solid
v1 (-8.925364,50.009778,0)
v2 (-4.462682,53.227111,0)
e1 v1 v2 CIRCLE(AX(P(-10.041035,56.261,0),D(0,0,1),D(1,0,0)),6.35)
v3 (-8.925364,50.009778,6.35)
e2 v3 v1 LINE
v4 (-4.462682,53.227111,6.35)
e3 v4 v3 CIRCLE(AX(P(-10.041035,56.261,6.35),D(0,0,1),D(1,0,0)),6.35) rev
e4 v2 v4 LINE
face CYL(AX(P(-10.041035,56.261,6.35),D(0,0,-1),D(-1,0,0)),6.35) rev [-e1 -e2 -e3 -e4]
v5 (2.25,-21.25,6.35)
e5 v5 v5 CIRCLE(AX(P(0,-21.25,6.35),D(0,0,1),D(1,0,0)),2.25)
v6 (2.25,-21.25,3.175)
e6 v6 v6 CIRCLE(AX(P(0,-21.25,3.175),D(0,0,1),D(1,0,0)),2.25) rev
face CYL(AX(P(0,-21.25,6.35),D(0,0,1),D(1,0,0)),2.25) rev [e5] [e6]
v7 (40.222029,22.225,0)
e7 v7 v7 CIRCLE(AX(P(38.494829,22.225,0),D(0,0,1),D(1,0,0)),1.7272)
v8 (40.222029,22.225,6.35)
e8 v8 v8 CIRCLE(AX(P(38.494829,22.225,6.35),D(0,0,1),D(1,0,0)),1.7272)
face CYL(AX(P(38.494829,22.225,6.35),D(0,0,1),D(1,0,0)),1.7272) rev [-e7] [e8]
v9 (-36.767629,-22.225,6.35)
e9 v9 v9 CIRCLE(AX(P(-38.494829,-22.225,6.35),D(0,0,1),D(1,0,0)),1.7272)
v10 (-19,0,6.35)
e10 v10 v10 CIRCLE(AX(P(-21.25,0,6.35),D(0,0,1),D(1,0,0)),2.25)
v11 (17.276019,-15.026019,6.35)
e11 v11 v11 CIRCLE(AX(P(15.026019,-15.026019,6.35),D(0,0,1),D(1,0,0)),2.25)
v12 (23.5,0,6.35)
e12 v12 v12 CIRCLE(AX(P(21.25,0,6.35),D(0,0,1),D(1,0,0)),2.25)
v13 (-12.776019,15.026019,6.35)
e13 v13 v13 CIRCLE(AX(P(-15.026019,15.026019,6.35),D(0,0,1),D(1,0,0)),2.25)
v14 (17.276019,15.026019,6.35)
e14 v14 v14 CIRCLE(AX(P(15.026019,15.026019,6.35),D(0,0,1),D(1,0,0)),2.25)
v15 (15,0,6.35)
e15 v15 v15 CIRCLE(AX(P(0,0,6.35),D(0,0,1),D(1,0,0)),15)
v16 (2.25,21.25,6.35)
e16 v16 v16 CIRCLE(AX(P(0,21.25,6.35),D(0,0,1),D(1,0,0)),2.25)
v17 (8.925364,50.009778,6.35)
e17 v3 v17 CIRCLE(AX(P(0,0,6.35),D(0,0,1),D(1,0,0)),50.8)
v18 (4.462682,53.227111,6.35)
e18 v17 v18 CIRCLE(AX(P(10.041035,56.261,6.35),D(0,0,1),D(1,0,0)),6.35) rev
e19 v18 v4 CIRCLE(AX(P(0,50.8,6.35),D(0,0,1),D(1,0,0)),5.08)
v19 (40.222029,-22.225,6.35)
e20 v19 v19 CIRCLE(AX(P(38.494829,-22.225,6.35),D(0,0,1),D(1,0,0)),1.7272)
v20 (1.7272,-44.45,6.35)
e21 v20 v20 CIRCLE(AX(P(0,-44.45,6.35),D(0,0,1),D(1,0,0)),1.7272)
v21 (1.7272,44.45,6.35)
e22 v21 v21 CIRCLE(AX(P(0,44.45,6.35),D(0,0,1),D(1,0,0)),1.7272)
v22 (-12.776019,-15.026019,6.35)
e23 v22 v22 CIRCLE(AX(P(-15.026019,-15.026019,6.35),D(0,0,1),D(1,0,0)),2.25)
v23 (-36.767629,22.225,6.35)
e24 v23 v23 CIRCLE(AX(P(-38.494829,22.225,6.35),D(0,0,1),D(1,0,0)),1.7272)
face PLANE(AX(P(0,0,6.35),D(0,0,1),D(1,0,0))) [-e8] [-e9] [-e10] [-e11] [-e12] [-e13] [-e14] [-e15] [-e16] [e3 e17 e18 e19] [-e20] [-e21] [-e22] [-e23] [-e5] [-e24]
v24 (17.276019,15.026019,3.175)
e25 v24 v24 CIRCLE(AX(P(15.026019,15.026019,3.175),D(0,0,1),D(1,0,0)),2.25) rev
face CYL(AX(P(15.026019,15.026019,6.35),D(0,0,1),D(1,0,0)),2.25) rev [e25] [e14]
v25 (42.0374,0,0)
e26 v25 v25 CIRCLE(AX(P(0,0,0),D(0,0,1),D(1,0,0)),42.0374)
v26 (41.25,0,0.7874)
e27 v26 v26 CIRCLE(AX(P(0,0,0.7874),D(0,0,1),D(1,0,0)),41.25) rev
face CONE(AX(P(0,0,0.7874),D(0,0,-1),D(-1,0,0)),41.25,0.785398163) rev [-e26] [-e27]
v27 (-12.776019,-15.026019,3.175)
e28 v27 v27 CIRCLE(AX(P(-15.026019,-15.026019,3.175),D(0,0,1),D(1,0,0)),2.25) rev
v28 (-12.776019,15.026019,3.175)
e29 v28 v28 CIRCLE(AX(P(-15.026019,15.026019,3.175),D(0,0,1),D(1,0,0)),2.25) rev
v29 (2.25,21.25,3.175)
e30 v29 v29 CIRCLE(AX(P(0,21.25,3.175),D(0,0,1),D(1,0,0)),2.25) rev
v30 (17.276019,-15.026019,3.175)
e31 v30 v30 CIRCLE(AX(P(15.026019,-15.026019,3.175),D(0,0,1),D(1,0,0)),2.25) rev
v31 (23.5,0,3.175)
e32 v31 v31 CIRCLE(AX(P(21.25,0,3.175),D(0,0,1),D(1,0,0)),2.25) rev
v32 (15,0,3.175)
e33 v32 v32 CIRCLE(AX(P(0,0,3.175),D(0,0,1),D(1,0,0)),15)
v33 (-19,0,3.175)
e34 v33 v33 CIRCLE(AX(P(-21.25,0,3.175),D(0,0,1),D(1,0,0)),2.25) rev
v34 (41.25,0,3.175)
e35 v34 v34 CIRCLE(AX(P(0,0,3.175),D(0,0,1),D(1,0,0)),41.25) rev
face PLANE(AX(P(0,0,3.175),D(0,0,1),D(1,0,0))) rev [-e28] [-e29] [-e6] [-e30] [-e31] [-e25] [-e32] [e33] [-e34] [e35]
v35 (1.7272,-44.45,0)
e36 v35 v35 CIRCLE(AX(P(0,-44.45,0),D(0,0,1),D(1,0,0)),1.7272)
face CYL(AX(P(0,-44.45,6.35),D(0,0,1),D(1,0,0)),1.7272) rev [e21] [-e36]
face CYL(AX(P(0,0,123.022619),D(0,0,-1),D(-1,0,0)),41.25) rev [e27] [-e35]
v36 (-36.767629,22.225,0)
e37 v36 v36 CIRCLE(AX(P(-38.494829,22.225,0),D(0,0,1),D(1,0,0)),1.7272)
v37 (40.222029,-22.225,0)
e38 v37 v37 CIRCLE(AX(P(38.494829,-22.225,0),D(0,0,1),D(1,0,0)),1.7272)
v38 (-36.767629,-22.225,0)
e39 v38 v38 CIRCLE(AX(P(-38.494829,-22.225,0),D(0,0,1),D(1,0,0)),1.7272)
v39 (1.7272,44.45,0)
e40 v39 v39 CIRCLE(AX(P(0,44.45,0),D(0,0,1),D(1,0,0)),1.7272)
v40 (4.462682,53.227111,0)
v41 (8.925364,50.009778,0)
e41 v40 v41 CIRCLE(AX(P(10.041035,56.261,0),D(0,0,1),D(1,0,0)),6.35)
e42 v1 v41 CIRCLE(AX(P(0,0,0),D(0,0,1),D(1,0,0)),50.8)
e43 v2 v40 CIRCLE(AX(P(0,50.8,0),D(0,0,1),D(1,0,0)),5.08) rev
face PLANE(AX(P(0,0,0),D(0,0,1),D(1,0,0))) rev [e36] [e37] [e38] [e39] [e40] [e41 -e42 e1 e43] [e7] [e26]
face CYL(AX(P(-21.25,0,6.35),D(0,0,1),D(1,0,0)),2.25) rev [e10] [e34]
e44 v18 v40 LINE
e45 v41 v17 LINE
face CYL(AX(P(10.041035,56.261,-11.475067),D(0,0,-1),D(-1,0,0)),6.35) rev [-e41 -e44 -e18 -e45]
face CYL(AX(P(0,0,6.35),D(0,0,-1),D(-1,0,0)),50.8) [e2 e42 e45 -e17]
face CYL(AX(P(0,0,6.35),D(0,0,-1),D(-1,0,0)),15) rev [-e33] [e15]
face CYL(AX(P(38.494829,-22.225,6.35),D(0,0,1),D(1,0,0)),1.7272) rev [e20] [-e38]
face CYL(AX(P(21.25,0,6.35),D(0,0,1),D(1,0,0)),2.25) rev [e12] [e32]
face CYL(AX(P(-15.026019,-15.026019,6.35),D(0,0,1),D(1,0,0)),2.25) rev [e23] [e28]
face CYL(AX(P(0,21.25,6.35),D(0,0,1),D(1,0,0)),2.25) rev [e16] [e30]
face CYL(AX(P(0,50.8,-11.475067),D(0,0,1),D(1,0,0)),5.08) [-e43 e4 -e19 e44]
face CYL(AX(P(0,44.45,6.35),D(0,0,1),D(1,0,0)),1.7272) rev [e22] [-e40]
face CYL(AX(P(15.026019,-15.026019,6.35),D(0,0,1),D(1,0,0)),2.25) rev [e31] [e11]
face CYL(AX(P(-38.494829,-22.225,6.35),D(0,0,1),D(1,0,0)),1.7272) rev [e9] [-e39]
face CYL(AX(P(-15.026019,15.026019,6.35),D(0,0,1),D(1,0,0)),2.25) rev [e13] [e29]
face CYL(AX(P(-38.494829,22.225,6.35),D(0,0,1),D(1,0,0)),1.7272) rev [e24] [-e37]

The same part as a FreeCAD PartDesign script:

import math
import FreeCAD as App
import Part
import Sketcher

V = App.Vector
Q = App.Units.Quantity


def edges_at(feature, points):
    """Names of the edges that pass closest to the given points."""
    edges = feature.Shape.Edges
    near = lambda p: min(range(len(edges)), key=lambda i: edges[i].distToShape(Part.Vertex(*p))[0])
    return sorted({f"Edge{near(p) + 1}" for p in points})

doc = App.newDocument("Part")
body = doc.addObject("PartDesign::Body", "Body")

# Sketch on XY plane
sketch1 = body.newObject("Sketcher::SketchObject", "Sketch")
sketch1.AttachmentSupport = (doc.getObject("XY_Plane"), [""])
sketch1.MapMode = "FlatFace"
sketch1.addGeometry([
    Part.Circle(V(0, 0, 0), V(0, 0, 1), 51),
    Part.Circle(V(0, 0, 0), V(0, 0, 1), 15),
], False)
sketch1.addConstraint([
    Sketcher.Constraint("Coincident", 0, 3, -1, 1),
    Sketcher.Constraint("Coincident", 1, 3, -1, 1),
    Sketcher.Constraint("Diameter", 0, Q("4 in")),
    Sketcher.Constraint("Diameter", 1, 30.0),
])
pad1 = body.newObject("PartDesign::Pad", "Pad")
pad1.Profile = sketch1
pad1.Length = Q("0.25 in")

# Sketch on YZ plane
sketch2 = body.newObject("Sketcher::SketchObject", "Sketch001")
sketch2.AttachmentSupport = (doc.getObject("YZ_Plane"), [""])
sketch2.MapMode = "FlatFace"
sketch2.addGeometry([
    Part.LineSegment(V(21.2, -20.4, 0), V(21.2, 6.3, 0)),
    Part.LineSegment(V(21.2, 6.3, 0), V(19, 6.3, 0)),
    Part.LineSegment(V(19, 6.3, 0), V(19, -19.1, 0)),
    Part.LineSegment(V(19, -19.1, 0), V(21.2, -20.4, 0)),
], False)
sketch2.addGeometry(Part.LineSegment(V(21.2, 6.3, 0), V(21.2, -20.4, 0)), True)  # axis
sketch2.addConstraint([
    Sketcher.Constraint("Coincident", 0, 2, 1, 1),
    Sketcher.Constraint("Coincident", 1, 2, 2, 1),
    Sketcher.Constraint("Coincident", 2, 2, 3, 1),
    Sketcher.Constraint("Coincident", 3, 2, 0, 1),
    Sketcher.Constraint("Vertical", 0),
    Sketcher.Constraint("Horizontal", 1),
    Sketcher.Constraint("Vertical", 2),
    Sketcher.Constraint("Vertical", 4),
    Sketcher.Constraint("Coincident", 4, 1, 0, 2),
    Sketcher.Constraint("Equal", 0, 4),
    Sketcher.Constraint("DistanceY", 2, 2, 2, 1, Q("1 in")),
    Sketcher.Constraint("Angle", 3, Q("-31 deg")),
    Sketcher.Constraint("DistanceY", -1, 1, 0, 2, Q("0.25 in")),
    Sketcher.Constraint("DistanceX", 1, 2, 1, 1, 2.25),
    Sketcher.Constraint("DistanceX", -1, 1, 0, 2, 21.25),
])
groove = body.newObject("PartDesign::Groove", "Groove")
groove.Profile = sketch2
groove.ReferenceAxis = (sketch2, ["Axis0"])
groove.Angle = 360
doc.recompute()

polarpattern = body.newObject("PartDesign::PolarPattern", "PolarPattern")
polarpattern.Originals = [groove]
polarpattern.Axis = (doc.getObject("Z_Axis"), [""])
polarpattern.Angle = 360
polarpattern.Occurrences = 8
body.Tip = polarpattern

# Sketch on XY plane
sketch3 = body.newObject("Sketcher::SketchObject", "Sketch002")
sketch3.AttachmentSupport = (doc.getObject("XY_Plane"), [""])
sketch3.MapMode = "FlatFace"
sketch3.addGeometry(Part.Circle(V(0, 0, 0), V(0, 0, 1), 41), False)
sketch3.addConstraint([
    Sketcher.Constraint("Coincident", 0, 3, -1, 1),
    Sketcher.Constraint("Diameter", 0, 82.5),
])
pocket1 = body.newObject("PartDesign::Pocket", "Pocket")
pocket1.Profile = sketch3
pocket1.Length = Q("0.125 in")
pocket1.Reversed = True
doc.recompute()

chamfer = body.newObject("PartDesign::Chamfer", "Chamfer")
chamfer.Base = (pocket1, edges_at(pocket1, [(41.25, 0, 0)]))
chamfer.Size = Q("0.031 in")

# Sketch on XY plane
sketch4 = body.newObject("Sketcher::SketchObject", "Sketch003")
sketch4.AttachmentSupport = (doc.getObject("XY_Plane"), [""])
sketch4.MapMode = "FlatFace"
sketch4.AttachmentOffset = App.Placement(V(0, 0, 0.25 * 25.4), App.Rotation())
sketch4.addGeometry(Part.Circle(V(0, 44.5, 0), V(0, 0, 1), 1.7), False)
sketch4.addConstraint([
    Sketcher.Constraint("PointOnObject", 0, 3, -2),
    Sketcher.Constraint("Diameter", 0, Q("0.136 in")),
    Sketcher.Constraint("DistanceY", -1, 1, 0, 3, Q("1.75 in")),
])
doc.recompute()
hole = body.newObject("PartDesign::Hole", "Hole")
hole.Profile = sketch4
hole.ThreadType = "None"
hole.Diameter = Q("0.136 in")
hole.DepthType = "ThroughAll"
doc.recompute()

polarpattern2 = body.newObject("PartDesign::PolarPattern", "PolarPattern001")
polarpattern2.Originals = [hole]
polarpattern2.Axis = (doc.getObject("Z_Axis"), [""])
polarpattern2.Angle = 360
polarpattern2.Occurrences = 6
body.Tip = polarpattern2

# Sketch on XY plane
sketch5 = body.newObject("Sketcher::SketchObject", "Sketch004")
sketch5.AttachmentSupport = (doc.getObject("XY_Plane"), [""])
sketch5.MapMode = "FlatFace"
sketch5.addGeometry([
    Part.ArcOfCircle(Part.Circle(V(0, 51, 0), V(0, 0, 1), 5), math.radians(-3), math.radians(183)),
    Part.ArcOfCircle(Part.Circle(V(0, 0, 0), V(0, 0, 1), 51), math.radians(84.27), math.radians(95.73)),
], False)
sketch5.addConstraint([
    Sketcher.Constraint("Coincident", 0, 1, 1, 1),
    Sketcher.Constraint("Coincident", 1, 2, 0, 2),
    Sketcher.Constraint("Coincident", 1, 3, -1, 1),
    Sketcher.Constraint("PointOnObject", 0, 3, -2),
    Sketcher.Constraint("Radius", 1, Q("2 in")),
    Sketcher.Constraint("Radius", 0, Q("0.2 in")),
    Sketcher.Constraint("DistanceY", -1, 1, 0, 3, Q("2 in")),
])
pad2 = body.newObject("PartDesign::Pad", "Pad001")
pad2.Profile = sketch5
pad2.Length = Q("0.25 in")
doc.recompute()

fillet = body.newObject("PartDesign::Fillet", "Fillet")
fillet.Base = (pad2, edges_at(pad2, [(5.074, 50.546, 3.175), (-5.074, 50.546, 3.175)]))
fillet.Radius = Q("0.25 in")

doc.recompute()
